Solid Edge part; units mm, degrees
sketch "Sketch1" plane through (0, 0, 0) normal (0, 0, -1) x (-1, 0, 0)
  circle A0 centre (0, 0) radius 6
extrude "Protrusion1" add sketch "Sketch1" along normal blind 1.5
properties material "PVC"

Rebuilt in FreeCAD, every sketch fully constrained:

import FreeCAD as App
import Part
import Sketcher
Q = App.Units.Quantity

doc = App.newDocument("Part")
params = doc.addObject("Spreadsheet::Sheet", "Params")
for row, (alias, value) in enumerate([
    ("sketch1_diameter", "12 mm"),
    ("pad1_length", "1.5 mm"),
], start=1):
    params.set(f"A{row}", alias)
    params.set(f"B{row}", "=" + value)
    params.setAlias(f"B{row}", alias)

body = doc.addObject("PartDesign::Body", "Body")

sketch1 = body.newObject("Sketcher::SketchObject", "Sketch")
sketch1.AttachmentSupport = (doc.getObject("XY_Plane"), [""])
sketch1.MapMode = "FlatFace"
sketch1.addGeometry(Part.Circle(App.Vector(0, 0, 0), App.Vector(0, 0, 1), 6), False)
sketch1.addConstraint([
    Sketcher.Constraint("Coincident", 0, 3, -1, 1),
    Sketcher.Constraint("Diameter", 0, Q("12 mm")),
])
sketch1.setExpression("Constraints[1]", "Params.sketch1_diameter")
pad1 = body.newObject("PartDesign::Pad", "Pad")
pad1.Profile = sketch1
pad1.setExpression("Length", "Params.pad1_length")
pad1.Reversed = True

doc.recompute()
